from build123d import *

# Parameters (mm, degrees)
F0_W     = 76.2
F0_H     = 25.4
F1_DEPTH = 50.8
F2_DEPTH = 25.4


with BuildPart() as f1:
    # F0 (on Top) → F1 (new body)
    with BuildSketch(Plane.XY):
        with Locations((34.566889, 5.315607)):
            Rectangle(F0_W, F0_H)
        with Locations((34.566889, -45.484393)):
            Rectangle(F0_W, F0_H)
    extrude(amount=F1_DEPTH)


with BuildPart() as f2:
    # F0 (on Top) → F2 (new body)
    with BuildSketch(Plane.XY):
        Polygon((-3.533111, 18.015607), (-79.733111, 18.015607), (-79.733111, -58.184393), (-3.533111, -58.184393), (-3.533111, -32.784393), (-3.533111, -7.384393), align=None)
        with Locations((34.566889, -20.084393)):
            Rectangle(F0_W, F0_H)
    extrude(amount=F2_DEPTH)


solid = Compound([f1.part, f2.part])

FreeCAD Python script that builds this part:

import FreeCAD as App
import Part
import Sketcher
Q = App.Units.Quantity


def add_polygon(sketch, points):
    """Adds a closed chain of lines whose ends are joined by coincident constraints."""
    first, n = sketch.GeometryCount, len(points)
    for a, b in zip(points, points[1:] + points[:1]):
        sketch.addGeometry(Part.LineSegment(App.Vector(*a, 0), App.Vector(*b, 0)), False)
    for i in range(n):
        sketch.addConstraint(Sketcher.Constraint("Coincident", first + i, 2, first + (i + 1) % n, 1))

doc = App.newDocument("Part")
body = doc.addObject("PartDesign::Body", "Body")
body.AllowCompound = True

sketch1 = body.newObject("Sketcher::SketchObject", "Sketch")
sketch1.AttachmentSupport = (doc.getObject("XY_Plane"), [""])
sketch1.MapMode = "FlatFace"
add_polygon(sketch1, [(-3.533111, 18.015607), (-3.533111, -7.384393), (72.666889, -7.384393), (72.666889, 18.015607)])
add_polygon(sketch1, [(-3.533111, -32.784393), (-3.533111, -58.184393), (72.666889, -58.184393), (72.666889, -32.784393)])
sketch1.addConstraint([
    Sketcher.Constraint("Vertical", 0),
    Sketcher.Constraint("Horizontal", 1),
    Sketcher.Constraint("Vertical", 2),
    Sketcher.Constraint("Horizontal", 3),
    Sketcher.Constraint("Vertical", 4),
    Sketcher.Constraint("Horizontal", 5),
    Sketcher.Constraint("Vertical", 6),
    Sketcher.Constraint("Horizontal", 7),
    Sketcher.Constraint("Vertical", 3, 2, 4, 2),
    Sketcher.Constraint("Vertical", 2, 2, 5, 2),
    Sketcher.Constraint("Equal", 2, 4),
    Sketcher.Constraint("DistanceX", 1, 1, 1, 2, Q("3 in")),
    Sketcher.Constraint("DistanceY", 0, 2, 0, 1, Q("1 in")),
    Sketcher.Constraint("DistanceY", 4, 2, 0, 2, Q("2 in")),
    Sketcher.Constraint("DistanceX", 0, 2, -1, 1, Q("3.533111 mm")),
    Sketcher.Constraint("DistanceY", 0, 2, -1, 1, Q("7.384393 mm")),
])
pad1 = body.newObject("PartDesign::Pad", "Pad")
pad1.Profile = sketch1
pad1.Length = Q("2 in")
body2 = doc.addObject("PartDesign::Body", "Body001")

sketch2 = body2.newObject("Sketcher::SketchObject", "Sketch001")
sketch2.AttachmentSupport = (doc.getObject("XY_Plane001"), [""])
sketch2.MapMode = "FlatFace"
add_polygon(sketch2, [(-3.533111, 18.015607), (-79.733111, 18.015607), (-79.733111, -58.184393), (-3.533111, -58.184393), (-3.533111, -32.784393), (72.666889, -32.784393), (72.666889, -7.384393), (-3.533111, -7.384393)])
sketch2.addConstraint([
    Sketcher.Constraint("Horizontal", 0),
    Sketcher.Constraint("Vertical", 1),
    Sketcher.Constraint("Horizontal", 2),
    Sketcher.Constraint("Vertical", 3),
    Sketcher.Constraint("Horizontal", 4),
    Sketcher.Constraint("Vertical", 5),
    Sketcher.Constraint("Horizontal", 6),
    Sketcher.Constraint("Vertical", 7),
    Sketcher.Constraint("Vertical", 3, 2, 6, 2),
    Sketcher.Constraint("Equal", 2, 4),
    Sketcher.Constraint("Equal", 6, 1),
    Sketcher.Constraint("Equal", 3, 5),
    Sketcher.Constraint("Equal", 5, 7),
    Sketcher.Constraint("DistanceX", 0, 2, 0, 1, Q("3 in")),
    Sketcher.Constraint("DistanceX", 0, 2, -1, 1, Q("79.733111 mm")),
    Sketcher.Constraint("DistanceY", -1, 1, 0, 2, Q("18.015607 mm")),
])
pad2 = body2.newObject("PartDesign::Pad", "Pad001")
pad2.Profile = sketch2
pad2.Length = Q("1 in")

doc.recompute()
